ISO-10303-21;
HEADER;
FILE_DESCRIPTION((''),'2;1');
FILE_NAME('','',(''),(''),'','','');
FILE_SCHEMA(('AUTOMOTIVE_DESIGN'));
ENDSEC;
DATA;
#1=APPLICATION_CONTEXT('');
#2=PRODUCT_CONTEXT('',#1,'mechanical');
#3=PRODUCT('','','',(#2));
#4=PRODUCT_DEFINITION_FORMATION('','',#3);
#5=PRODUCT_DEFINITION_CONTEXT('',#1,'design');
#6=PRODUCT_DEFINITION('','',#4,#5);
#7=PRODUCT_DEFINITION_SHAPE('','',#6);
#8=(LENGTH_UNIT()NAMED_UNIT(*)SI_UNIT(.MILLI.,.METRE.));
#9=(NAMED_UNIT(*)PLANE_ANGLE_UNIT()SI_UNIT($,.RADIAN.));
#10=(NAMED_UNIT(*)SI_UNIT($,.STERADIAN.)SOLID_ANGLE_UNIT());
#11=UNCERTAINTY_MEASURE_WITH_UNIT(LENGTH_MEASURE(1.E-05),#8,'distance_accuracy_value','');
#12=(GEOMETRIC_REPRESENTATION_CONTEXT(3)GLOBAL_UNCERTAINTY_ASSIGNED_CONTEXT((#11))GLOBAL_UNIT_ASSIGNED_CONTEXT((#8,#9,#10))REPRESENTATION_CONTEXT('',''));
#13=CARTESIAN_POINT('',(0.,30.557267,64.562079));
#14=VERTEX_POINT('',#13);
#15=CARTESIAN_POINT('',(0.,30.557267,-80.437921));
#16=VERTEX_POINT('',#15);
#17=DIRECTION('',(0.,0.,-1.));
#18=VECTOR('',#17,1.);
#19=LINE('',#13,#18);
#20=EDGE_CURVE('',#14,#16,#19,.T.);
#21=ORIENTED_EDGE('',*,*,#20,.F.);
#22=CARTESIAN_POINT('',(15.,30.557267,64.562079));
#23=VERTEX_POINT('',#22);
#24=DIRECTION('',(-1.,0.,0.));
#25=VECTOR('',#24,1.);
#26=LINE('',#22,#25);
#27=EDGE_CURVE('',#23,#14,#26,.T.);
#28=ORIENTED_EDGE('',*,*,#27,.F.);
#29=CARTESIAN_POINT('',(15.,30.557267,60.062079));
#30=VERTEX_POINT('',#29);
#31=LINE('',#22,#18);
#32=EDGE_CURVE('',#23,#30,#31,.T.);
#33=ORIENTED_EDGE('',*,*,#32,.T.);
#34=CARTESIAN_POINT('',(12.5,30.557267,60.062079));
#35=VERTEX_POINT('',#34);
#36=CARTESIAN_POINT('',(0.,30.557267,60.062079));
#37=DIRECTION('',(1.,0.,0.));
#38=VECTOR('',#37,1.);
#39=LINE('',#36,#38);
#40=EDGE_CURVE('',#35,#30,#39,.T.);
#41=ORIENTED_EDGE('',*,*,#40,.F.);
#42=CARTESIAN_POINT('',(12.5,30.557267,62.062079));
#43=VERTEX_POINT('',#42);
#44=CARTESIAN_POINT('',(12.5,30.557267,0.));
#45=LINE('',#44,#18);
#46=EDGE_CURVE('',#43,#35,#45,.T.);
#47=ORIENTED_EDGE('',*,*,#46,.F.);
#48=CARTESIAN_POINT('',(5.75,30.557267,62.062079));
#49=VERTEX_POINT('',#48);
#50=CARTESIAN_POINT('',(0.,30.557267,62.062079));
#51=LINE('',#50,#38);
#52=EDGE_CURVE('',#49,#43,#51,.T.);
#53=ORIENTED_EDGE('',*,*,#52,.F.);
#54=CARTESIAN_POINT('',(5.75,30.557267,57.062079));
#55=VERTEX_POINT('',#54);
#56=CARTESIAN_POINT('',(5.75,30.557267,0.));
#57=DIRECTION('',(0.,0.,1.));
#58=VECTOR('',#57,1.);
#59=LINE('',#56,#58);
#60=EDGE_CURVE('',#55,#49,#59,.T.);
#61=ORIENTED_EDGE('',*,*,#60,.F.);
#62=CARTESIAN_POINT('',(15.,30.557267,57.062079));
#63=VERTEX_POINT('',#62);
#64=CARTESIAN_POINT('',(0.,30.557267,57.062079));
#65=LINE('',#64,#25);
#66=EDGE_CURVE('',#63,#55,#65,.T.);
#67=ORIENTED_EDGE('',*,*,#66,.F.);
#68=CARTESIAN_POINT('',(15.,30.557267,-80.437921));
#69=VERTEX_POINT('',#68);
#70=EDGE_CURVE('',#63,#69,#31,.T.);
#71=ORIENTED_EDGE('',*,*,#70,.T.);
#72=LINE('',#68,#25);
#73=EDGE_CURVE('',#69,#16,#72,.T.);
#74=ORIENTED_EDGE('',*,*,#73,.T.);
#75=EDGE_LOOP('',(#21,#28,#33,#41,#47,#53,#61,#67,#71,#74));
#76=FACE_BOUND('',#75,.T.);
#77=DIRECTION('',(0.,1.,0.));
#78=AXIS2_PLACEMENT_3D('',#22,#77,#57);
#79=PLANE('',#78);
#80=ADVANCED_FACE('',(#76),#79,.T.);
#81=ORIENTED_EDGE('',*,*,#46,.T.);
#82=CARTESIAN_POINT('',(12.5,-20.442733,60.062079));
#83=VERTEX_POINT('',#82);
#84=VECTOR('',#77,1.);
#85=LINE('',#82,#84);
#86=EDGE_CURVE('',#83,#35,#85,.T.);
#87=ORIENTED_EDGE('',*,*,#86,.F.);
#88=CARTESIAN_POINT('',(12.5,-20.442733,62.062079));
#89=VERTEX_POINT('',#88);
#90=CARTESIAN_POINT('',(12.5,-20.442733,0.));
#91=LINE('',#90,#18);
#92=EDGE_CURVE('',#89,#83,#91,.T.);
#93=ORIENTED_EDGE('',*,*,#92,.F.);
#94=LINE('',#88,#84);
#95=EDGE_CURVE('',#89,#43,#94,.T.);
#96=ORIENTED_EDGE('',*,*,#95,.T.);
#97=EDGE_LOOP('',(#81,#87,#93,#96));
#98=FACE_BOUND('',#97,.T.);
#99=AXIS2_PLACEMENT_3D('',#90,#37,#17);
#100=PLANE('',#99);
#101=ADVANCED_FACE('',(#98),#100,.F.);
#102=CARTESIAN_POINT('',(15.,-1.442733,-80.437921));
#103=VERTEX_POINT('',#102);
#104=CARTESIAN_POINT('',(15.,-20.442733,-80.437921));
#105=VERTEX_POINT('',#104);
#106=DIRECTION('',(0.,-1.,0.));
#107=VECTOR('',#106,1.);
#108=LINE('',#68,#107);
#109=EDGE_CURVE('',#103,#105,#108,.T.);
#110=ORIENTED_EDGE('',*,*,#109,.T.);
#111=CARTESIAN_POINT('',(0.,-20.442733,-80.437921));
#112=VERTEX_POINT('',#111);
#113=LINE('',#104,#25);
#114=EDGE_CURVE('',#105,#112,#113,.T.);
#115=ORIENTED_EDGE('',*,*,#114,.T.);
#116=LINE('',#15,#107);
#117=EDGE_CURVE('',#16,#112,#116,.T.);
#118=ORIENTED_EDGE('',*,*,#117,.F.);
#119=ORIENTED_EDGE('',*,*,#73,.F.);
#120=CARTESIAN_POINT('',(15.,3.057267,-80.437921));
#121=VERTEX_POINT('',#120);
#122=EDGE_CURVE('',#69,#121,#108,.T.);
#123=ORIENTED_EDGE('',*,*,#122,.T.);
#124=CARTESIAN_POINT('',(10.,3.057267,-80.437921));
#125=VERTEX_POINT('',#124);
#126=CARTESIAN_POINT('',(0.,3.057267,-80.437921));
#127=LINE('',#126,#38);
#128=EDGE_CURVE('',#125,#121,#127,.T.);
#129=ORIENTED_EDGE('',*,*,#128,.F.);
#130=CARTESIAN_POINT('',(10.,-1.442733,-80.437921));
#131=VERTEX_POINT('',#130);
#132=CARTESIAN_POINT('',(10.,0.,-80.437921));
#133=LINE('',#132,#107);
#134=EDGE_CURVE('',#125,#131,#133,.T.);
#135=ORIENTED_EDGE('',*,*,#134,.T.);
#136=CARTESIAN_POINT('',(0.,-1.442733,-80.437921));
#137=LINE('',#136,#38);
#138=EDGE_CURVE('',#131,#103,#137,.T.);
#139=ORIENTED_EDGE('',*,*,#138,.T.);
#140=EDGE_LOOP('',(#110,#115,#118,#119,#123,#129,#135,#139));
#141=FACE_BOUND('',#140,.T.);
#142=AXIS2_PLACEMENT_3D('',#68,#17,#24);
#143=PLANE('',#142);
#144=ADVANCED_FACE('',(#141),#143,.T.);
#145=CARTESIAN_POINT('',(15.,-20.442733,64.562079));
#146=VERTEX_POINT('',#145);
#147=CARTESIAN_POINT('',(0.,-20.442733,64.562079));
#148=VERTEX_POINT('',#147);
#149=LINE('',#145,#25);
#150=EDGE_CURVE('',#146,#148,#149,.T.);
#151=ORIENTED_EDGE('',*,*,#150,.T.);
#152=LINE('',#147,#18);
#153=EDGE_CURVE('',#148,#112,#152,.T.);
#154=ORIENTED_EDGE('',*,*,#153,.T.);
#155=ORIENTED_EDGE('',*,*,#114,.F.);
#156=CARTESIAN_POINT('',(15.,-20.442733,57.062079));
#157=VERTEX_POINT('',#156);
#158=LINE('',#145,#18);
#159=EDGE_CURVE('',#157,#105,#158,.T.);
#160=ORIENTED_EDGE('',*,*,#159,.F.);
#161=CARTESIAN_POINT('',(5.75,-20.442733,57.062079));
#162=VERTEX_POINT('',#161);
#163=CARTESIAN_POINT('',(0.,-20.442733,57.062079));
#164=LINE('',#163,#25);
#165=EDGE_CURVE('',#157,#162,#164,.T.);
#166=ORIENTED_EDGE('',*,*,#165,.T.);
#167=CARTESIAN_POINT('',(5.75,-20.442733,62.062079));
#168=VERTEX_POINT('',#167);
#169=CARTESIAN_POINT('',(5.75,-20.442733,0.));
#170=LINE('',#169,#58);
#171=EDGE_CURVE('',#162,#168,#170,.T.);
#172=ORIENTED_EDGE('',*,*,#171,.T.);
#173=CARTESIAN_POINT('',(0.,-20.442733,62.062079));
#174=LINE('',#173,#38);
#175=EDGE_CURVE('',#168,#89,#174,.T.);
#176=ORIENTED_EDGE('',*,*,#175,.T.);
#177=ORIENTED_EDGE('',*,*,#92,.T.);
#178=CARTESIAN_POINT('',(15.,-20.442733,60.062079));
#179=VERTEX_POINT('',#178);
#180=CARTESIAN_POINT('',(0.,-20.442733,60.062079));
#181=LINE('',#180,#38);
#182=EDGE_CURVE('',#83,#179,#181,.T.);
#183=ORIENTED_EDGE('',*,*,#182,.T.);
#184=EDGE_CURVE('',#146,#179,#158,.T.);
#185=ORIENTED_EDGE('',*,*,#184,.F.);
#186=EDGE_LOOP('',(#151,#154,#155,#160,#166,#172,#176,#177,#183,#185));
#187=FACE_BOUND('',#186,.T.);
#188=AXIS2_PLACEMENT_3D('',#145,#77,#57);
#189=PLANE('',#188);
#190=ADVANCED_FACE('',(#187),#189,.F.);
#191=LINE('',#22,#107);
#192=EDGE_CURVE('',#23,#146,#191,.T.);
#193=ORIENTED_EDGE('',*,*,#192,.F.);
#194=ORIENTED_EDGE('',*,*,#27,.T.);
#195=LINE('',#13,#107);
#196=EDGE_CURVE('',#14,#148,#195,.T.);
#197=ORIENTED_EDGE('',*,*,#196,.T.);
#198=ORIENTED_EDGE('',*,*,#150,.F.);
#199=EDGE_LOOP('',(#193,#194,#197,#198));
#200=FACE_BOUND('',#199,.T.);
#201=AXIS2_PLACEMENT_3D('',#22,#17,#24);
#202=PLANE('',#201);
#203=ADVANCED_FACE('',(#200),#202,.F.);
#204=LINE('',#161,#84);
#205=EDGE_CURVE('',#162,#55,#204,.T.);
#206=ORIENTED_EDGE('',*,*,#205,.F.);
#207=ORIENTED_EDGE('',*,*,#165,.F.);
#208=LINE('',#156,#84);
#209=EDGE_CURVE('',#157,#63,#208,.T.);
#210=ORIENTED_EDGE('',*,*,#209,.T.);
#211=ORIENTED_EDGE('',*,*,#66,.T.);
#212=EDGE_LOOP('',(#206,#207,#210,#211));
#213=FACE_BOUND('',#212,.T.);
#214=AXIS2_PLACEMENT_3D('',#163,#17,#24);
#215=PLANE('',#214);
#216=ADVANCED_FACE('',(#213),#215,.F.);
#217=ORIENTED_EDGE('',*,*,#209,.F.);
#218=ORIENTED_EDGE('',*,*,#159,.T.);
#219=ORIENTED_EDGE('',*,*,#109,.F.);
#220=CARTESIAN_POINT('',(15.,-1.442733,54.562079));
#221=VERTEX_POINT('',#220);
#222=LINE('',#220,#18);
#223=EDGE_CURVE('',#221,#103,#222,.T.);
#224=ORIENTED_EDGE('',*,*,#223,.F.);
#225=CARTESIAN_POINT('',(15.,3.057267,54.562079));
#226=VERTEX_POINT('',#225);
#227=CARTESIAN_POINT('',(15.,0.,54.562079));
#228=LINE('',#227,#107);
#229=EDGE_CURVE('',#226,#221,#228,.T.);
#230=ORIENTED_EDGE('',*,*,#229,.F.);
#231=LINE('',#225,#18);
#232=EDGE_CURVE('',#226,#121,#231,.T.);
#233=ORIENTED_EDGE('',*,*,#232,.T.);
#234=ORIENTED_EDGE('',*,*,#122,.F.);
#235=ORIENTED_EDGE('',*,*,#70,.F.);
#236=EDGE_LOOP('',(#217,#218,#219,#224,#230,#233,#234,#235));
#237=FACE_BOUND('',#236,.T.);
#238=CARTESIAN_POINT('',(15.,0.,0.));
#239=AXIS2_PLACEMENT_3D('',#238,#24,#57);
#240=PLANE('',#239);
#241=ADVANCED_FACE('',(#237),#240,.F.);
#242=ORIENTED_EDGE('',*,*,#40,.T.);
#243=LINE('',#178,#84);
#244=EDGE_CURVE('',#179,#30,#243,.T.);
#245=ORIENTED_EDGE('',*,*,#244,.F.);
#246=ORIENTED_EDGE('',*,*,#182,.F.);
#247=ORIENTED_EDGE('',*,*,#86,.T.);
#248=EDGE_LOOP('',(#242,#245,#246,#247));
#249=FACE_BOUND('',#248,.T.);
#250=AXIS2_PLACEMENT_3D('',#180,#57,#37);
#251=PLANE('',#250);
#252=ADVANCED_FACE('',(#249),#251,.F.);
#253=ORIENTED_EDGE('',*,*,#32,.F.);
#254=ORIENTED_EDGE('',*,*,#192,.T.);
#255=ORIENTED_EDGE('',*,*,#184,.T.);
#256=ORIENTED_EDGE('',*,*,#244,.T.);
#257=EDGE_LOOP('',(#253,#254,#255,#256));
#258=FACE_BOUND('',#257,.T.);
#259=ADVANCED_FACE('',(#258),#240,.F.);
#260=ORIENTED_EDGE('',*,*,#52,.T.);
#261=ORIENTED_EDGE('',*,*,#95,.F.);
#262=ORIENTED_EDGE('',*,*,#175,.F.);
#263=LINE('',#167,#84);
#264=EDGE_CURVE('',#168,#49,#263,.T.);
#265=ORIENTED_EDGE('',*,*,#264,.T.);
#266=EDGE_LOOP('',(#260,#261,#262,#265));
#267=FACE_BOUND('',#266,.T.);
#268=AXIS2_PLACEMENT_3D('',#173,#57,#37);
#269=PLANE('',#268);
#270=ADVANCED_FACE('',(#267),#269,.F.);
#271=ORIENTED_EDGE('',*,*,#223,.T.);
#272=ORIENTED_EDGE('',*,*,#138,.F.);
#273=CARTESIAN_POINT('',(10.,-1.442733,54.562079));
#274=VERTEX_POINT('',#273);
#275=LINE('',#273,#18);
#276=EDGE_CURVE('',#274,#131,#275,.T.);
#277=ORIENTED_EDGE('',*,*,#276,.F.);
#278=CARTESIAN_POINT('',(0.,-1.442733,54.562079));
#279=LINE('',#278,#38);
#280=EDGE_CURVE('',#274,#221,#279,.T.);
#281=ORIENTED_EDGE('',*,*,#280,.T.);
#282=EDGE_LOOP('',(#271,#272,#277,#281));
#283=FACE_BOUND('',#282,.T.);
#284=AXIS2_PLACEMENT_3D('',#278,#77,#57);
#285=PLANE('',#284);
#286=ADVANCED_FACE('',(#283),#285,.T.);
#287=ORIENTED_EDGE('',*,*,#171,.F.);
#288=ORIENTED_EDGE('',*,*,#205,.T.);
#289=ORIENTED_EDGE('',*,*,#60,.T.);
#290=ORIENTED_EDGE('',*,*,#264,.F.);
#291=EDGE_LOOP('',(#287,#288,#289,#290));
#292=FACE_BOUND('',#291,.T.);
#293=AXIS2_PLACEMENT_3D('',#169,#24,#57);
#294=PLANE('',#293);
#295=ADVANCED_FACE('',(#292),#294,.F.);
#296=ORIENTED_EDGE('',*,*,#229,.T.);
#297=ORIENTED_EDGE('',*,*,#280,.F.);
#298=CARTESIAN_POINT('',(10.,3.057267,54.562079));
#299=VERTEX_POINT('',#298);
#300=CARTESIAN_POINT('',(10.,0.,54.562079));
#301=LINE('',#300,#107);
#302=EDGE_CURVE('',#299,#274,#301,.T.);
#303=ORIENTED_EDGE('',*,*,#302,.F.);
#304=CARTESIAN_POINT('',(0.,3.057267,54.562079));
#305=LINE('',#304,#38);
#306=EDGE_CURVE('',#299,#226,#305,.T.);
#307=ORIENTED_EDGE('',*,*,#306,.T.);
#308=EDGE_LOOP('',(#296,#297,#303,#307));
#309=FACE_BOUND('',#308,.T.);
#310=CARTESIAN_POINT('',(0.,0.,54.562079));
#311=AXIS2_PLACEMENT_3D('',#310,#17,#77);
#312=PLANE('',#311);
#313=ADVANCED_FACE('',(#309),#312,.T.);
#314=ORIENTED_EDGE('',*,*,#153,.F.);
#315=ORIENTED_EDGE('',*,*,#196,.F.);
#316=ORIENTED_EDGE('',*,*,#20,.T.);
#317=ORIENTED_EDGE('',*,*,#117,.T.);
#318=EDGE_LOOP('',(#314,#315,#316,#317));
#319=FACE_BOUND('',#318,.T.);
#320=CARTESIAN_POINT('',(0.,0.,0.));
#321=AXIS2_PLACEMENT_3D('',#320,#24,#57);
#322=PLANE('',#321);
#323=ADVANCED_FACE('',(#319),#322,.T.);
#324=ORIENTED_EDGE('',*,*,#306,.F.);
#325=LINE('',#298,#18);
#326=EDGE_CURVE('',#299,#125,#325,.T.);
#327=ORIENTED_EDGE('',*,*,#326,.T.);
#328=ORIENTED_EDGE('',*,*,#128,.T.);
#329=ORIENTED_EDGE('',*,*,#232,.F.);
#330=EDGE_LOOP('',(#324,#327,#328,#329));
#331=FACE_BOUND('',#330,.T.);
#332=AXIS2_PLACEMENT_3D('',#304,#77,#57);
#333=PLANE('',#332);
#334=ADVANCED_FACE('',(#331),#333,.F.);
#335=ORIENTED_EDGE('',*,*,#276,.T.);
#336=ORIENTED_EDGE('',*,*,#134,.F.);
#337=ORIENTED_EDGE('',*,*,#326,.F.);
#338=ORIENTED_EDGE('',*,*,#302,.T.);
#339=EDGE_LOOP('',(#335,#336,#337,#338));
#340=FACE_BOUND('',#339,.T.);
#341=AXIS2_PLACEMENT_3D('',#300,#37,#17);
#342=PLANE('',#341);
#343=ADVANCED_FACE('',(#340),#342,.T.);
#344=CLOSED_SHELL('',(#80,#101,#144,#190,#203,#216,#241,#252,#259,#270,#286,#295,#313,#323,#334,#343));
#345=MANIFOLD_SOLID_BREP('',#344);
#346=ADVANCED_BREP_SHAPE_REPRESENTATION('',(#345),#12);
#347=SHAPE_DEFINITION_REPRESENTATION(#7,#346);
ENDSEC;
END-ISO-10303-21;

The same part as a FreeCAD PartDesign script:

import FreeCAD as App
import Part
import Sketcher

V = App.Vector
Q = App.Units.Quantity


def add_polygon(sketch, points):
    """Adds a closed chain of lines whose ends are joined by coincident constraints."""
    first, n = sketch.GeometryCount, len(points)
    for a, b in zip(points, points[1:] + points[:1]):
        sketch.addGeometry(Part.LineSegment(App.Vector(*a, 0), App.Vector(*b, 0)), False)
    for i in range(n):
        sketch.addConstraint(Sketcher.Constraint("Coincident", first + i, 2, first + (i + 1) % n, 1))

doc = App.newDocument("Part")
params = doc.addObject("Spreadsheet::Sheet", "Params")
for row, (alias, value) in enumerate([
    ("sketch1_width", "51 mm"),
    ("sketch1_height", "145 mm"),
    ("pad1_length", "15 mm"),
    ("sketch2_height", "3 mm"),
    ("sketch2_height2", "5 mm"),
    ("sketch2_width", "2.5 mm"),
    ("sketch2_width2", "9.25 mm"),
    ("sketch3_width", "5 mm"),
    ("sketch3_height", "4.5 mm"),
    ("pocket2_length", "135 mm"),
], start=1):
    params.set(f"A{row}", alias)
    params.set(f"B{row}", "=" + value)
    params.setAlias(f"B{row}", alias)

body = doc.addObject("PartDesign::Body", "Body")

# Sketch on YZ plane
sketch1 = body.newObject("Sketcher::SketchObject", "Sketch")
sketch1.AttachmentSupport = (doc.getObject("YZ_Plane"), [""])
sketch1.MapMode = "FlatFace"
add_polygon(sketch1, [(31, 65), (-20, 65), (-20, -80), (31, -80)])  # lines 0-3
sketch1.addConstraint([
    Sketcher.Constraint("Horizontal", 0),
    Sketcher.Constraint("Vertical", 1),
    Sketcher.Constraint("Horizontal", 2),
    Sketcher.Constraint("Vertical", 3),
    Sketcher.Constraint("DistanceX", 0, 2, 0, 1, Q("51 mm")),
    Sketcher.Constraint("DistanceY", 1, 2, 1, 1, Q("145 mm")),
    Sketcher.Constraint("DistanceY", -1, 1, 0, 2, Q("64.562079 mm")),
    Sketcher.Constraint("DistanceX", 0, 2, -1, 1, Q("20.442733 mm")),
])
sketch1.setExpression("Constraints[8]", "Params.sketch1_width")
sketch1.setExpression("Constraints[9]", "Params.sketch1_height")
pad1 = body.newObject("PartDesign::Pad", "Pad")
pad1.Profile = sketch1
pad1.setExpression("Length", "Params.pad1_length")

# Sketch on XZ plane
sketch2 = body.newObject("Sketcher::SketchObject", "Sketch001")
sketch2.AttachmentSupport = (doc.getObject("XZ_Plane"), [""])
sketch2.MapMode = "FlatFace"
sketch2.AttachmentOffset = App.Placement(V(0, 0, -30.557267), App.Rotation())
add_polygon(sketch2, [(12.5, 60.1), (15, 60.1), (15, 57.1), (5.8, 57.1), (5.8, 62.1), (12.5, 62.1)])  # lines 0-5
sketch2.addConstraint([
    Sketcher.Constraint("Horizontal", 0),
    Sketcher.Constraint("Vertical", 1),
    Sketcher.Constraint("Horizontal", 2),
    Sketcher.Constraint("Vertical", 3),
    Sketcher.Constraint("Horizontal", 4),
    Sketcher.Constraint("Vertical", 5),
    Sketcher.Constraint("DistanceY", 1, 2, 1, 1, Q("3 mm")),
    Sketcher.Constraint("DistanceY", 3, 1, 3, 2, Q("5 mm")),
    Sketcher.Constraint("DistanceX", 0, 1, 0, 2, Q("2.5 mm")),
    Sketcher.Constraint("DistanceX", -1, 1, 0, 2, Q("15 mm")),
    Sketcher.Constraint("DistanceX", 2, 2, 2, 1, Q("9.25 mm")),
    Sketcher.Constraint("DistanceY", -1, 1, 0, 2, Q("60.062079 mm")),
])
sketch2.setExpression("Constraints[12]", "Params.sketch2_height")
sketch2.setExpression("Constraints[13]", "Params.sketch2_height2")
sketch2.setExpression("Constraints[14]", "Params.sketch2_width")
sketch2.setExpression("Constraints[16]", "Params.sketch2_width2")
pocket1 = body.newObject("PartDesign::Pocket", "Pocket")
pocket1.Profile = sketch2
pocket1.Type = "ThroughAll"
pocket1.Reversed = True

# Sketch on XY plane
sketch3 = body.newObject("Sketcher::SketchObject", "Sketch002")
sketch3.AttachmentSupport = (doc.getObject("XY_Plane"), [""])
sketch3.MapMode = "FlatFace"
sketch3.AttachmentOffset = App.Placement(V(0, 0, -80.437921), App.Rotation())
add_polygon(sketch3, [(15, 3.1), (15, -1.4), (10, -1.4), (10, 3.1)])  # lines 0-3
sketch3.addConstraint([
    Sketcher.Constraint("Vertical", 0),
    Sketcher.Constraint("Horizontal", 1),
    Sketcher.Constraint("Vertical", 2),
    Sketcher.Constraint("Horizontal", 3),
    Sketcher.Constraint("DistanceX", 1, 2, 1, 1, Q("5 mm")),
    Sketcher.Constraint("DistanceY", 0, 2, 0, 1, Q("4.5 mm")),
    Sketcher.Constraint("DistanceX", -1, 1, 0, 2, Q("15 mm")),
    Sketcher.Constraint("DistanceY", 0, 2, -1, 1, Q("1.442733 mm")),
])
sketch3.setExpression("Constraints[8]", "Params.sketch3_width")
sketch3.setExpression("Constraints[9]", "Params.sketch3_height")
pocket2 = body.newObject("PartDesign::Pocket", "Pocket001")
pocket2.Profile = sketch3
pocket2.setExpression("Length", "Params.pocket2_length")
pocket2.Reversed = True

doc.recompute()
